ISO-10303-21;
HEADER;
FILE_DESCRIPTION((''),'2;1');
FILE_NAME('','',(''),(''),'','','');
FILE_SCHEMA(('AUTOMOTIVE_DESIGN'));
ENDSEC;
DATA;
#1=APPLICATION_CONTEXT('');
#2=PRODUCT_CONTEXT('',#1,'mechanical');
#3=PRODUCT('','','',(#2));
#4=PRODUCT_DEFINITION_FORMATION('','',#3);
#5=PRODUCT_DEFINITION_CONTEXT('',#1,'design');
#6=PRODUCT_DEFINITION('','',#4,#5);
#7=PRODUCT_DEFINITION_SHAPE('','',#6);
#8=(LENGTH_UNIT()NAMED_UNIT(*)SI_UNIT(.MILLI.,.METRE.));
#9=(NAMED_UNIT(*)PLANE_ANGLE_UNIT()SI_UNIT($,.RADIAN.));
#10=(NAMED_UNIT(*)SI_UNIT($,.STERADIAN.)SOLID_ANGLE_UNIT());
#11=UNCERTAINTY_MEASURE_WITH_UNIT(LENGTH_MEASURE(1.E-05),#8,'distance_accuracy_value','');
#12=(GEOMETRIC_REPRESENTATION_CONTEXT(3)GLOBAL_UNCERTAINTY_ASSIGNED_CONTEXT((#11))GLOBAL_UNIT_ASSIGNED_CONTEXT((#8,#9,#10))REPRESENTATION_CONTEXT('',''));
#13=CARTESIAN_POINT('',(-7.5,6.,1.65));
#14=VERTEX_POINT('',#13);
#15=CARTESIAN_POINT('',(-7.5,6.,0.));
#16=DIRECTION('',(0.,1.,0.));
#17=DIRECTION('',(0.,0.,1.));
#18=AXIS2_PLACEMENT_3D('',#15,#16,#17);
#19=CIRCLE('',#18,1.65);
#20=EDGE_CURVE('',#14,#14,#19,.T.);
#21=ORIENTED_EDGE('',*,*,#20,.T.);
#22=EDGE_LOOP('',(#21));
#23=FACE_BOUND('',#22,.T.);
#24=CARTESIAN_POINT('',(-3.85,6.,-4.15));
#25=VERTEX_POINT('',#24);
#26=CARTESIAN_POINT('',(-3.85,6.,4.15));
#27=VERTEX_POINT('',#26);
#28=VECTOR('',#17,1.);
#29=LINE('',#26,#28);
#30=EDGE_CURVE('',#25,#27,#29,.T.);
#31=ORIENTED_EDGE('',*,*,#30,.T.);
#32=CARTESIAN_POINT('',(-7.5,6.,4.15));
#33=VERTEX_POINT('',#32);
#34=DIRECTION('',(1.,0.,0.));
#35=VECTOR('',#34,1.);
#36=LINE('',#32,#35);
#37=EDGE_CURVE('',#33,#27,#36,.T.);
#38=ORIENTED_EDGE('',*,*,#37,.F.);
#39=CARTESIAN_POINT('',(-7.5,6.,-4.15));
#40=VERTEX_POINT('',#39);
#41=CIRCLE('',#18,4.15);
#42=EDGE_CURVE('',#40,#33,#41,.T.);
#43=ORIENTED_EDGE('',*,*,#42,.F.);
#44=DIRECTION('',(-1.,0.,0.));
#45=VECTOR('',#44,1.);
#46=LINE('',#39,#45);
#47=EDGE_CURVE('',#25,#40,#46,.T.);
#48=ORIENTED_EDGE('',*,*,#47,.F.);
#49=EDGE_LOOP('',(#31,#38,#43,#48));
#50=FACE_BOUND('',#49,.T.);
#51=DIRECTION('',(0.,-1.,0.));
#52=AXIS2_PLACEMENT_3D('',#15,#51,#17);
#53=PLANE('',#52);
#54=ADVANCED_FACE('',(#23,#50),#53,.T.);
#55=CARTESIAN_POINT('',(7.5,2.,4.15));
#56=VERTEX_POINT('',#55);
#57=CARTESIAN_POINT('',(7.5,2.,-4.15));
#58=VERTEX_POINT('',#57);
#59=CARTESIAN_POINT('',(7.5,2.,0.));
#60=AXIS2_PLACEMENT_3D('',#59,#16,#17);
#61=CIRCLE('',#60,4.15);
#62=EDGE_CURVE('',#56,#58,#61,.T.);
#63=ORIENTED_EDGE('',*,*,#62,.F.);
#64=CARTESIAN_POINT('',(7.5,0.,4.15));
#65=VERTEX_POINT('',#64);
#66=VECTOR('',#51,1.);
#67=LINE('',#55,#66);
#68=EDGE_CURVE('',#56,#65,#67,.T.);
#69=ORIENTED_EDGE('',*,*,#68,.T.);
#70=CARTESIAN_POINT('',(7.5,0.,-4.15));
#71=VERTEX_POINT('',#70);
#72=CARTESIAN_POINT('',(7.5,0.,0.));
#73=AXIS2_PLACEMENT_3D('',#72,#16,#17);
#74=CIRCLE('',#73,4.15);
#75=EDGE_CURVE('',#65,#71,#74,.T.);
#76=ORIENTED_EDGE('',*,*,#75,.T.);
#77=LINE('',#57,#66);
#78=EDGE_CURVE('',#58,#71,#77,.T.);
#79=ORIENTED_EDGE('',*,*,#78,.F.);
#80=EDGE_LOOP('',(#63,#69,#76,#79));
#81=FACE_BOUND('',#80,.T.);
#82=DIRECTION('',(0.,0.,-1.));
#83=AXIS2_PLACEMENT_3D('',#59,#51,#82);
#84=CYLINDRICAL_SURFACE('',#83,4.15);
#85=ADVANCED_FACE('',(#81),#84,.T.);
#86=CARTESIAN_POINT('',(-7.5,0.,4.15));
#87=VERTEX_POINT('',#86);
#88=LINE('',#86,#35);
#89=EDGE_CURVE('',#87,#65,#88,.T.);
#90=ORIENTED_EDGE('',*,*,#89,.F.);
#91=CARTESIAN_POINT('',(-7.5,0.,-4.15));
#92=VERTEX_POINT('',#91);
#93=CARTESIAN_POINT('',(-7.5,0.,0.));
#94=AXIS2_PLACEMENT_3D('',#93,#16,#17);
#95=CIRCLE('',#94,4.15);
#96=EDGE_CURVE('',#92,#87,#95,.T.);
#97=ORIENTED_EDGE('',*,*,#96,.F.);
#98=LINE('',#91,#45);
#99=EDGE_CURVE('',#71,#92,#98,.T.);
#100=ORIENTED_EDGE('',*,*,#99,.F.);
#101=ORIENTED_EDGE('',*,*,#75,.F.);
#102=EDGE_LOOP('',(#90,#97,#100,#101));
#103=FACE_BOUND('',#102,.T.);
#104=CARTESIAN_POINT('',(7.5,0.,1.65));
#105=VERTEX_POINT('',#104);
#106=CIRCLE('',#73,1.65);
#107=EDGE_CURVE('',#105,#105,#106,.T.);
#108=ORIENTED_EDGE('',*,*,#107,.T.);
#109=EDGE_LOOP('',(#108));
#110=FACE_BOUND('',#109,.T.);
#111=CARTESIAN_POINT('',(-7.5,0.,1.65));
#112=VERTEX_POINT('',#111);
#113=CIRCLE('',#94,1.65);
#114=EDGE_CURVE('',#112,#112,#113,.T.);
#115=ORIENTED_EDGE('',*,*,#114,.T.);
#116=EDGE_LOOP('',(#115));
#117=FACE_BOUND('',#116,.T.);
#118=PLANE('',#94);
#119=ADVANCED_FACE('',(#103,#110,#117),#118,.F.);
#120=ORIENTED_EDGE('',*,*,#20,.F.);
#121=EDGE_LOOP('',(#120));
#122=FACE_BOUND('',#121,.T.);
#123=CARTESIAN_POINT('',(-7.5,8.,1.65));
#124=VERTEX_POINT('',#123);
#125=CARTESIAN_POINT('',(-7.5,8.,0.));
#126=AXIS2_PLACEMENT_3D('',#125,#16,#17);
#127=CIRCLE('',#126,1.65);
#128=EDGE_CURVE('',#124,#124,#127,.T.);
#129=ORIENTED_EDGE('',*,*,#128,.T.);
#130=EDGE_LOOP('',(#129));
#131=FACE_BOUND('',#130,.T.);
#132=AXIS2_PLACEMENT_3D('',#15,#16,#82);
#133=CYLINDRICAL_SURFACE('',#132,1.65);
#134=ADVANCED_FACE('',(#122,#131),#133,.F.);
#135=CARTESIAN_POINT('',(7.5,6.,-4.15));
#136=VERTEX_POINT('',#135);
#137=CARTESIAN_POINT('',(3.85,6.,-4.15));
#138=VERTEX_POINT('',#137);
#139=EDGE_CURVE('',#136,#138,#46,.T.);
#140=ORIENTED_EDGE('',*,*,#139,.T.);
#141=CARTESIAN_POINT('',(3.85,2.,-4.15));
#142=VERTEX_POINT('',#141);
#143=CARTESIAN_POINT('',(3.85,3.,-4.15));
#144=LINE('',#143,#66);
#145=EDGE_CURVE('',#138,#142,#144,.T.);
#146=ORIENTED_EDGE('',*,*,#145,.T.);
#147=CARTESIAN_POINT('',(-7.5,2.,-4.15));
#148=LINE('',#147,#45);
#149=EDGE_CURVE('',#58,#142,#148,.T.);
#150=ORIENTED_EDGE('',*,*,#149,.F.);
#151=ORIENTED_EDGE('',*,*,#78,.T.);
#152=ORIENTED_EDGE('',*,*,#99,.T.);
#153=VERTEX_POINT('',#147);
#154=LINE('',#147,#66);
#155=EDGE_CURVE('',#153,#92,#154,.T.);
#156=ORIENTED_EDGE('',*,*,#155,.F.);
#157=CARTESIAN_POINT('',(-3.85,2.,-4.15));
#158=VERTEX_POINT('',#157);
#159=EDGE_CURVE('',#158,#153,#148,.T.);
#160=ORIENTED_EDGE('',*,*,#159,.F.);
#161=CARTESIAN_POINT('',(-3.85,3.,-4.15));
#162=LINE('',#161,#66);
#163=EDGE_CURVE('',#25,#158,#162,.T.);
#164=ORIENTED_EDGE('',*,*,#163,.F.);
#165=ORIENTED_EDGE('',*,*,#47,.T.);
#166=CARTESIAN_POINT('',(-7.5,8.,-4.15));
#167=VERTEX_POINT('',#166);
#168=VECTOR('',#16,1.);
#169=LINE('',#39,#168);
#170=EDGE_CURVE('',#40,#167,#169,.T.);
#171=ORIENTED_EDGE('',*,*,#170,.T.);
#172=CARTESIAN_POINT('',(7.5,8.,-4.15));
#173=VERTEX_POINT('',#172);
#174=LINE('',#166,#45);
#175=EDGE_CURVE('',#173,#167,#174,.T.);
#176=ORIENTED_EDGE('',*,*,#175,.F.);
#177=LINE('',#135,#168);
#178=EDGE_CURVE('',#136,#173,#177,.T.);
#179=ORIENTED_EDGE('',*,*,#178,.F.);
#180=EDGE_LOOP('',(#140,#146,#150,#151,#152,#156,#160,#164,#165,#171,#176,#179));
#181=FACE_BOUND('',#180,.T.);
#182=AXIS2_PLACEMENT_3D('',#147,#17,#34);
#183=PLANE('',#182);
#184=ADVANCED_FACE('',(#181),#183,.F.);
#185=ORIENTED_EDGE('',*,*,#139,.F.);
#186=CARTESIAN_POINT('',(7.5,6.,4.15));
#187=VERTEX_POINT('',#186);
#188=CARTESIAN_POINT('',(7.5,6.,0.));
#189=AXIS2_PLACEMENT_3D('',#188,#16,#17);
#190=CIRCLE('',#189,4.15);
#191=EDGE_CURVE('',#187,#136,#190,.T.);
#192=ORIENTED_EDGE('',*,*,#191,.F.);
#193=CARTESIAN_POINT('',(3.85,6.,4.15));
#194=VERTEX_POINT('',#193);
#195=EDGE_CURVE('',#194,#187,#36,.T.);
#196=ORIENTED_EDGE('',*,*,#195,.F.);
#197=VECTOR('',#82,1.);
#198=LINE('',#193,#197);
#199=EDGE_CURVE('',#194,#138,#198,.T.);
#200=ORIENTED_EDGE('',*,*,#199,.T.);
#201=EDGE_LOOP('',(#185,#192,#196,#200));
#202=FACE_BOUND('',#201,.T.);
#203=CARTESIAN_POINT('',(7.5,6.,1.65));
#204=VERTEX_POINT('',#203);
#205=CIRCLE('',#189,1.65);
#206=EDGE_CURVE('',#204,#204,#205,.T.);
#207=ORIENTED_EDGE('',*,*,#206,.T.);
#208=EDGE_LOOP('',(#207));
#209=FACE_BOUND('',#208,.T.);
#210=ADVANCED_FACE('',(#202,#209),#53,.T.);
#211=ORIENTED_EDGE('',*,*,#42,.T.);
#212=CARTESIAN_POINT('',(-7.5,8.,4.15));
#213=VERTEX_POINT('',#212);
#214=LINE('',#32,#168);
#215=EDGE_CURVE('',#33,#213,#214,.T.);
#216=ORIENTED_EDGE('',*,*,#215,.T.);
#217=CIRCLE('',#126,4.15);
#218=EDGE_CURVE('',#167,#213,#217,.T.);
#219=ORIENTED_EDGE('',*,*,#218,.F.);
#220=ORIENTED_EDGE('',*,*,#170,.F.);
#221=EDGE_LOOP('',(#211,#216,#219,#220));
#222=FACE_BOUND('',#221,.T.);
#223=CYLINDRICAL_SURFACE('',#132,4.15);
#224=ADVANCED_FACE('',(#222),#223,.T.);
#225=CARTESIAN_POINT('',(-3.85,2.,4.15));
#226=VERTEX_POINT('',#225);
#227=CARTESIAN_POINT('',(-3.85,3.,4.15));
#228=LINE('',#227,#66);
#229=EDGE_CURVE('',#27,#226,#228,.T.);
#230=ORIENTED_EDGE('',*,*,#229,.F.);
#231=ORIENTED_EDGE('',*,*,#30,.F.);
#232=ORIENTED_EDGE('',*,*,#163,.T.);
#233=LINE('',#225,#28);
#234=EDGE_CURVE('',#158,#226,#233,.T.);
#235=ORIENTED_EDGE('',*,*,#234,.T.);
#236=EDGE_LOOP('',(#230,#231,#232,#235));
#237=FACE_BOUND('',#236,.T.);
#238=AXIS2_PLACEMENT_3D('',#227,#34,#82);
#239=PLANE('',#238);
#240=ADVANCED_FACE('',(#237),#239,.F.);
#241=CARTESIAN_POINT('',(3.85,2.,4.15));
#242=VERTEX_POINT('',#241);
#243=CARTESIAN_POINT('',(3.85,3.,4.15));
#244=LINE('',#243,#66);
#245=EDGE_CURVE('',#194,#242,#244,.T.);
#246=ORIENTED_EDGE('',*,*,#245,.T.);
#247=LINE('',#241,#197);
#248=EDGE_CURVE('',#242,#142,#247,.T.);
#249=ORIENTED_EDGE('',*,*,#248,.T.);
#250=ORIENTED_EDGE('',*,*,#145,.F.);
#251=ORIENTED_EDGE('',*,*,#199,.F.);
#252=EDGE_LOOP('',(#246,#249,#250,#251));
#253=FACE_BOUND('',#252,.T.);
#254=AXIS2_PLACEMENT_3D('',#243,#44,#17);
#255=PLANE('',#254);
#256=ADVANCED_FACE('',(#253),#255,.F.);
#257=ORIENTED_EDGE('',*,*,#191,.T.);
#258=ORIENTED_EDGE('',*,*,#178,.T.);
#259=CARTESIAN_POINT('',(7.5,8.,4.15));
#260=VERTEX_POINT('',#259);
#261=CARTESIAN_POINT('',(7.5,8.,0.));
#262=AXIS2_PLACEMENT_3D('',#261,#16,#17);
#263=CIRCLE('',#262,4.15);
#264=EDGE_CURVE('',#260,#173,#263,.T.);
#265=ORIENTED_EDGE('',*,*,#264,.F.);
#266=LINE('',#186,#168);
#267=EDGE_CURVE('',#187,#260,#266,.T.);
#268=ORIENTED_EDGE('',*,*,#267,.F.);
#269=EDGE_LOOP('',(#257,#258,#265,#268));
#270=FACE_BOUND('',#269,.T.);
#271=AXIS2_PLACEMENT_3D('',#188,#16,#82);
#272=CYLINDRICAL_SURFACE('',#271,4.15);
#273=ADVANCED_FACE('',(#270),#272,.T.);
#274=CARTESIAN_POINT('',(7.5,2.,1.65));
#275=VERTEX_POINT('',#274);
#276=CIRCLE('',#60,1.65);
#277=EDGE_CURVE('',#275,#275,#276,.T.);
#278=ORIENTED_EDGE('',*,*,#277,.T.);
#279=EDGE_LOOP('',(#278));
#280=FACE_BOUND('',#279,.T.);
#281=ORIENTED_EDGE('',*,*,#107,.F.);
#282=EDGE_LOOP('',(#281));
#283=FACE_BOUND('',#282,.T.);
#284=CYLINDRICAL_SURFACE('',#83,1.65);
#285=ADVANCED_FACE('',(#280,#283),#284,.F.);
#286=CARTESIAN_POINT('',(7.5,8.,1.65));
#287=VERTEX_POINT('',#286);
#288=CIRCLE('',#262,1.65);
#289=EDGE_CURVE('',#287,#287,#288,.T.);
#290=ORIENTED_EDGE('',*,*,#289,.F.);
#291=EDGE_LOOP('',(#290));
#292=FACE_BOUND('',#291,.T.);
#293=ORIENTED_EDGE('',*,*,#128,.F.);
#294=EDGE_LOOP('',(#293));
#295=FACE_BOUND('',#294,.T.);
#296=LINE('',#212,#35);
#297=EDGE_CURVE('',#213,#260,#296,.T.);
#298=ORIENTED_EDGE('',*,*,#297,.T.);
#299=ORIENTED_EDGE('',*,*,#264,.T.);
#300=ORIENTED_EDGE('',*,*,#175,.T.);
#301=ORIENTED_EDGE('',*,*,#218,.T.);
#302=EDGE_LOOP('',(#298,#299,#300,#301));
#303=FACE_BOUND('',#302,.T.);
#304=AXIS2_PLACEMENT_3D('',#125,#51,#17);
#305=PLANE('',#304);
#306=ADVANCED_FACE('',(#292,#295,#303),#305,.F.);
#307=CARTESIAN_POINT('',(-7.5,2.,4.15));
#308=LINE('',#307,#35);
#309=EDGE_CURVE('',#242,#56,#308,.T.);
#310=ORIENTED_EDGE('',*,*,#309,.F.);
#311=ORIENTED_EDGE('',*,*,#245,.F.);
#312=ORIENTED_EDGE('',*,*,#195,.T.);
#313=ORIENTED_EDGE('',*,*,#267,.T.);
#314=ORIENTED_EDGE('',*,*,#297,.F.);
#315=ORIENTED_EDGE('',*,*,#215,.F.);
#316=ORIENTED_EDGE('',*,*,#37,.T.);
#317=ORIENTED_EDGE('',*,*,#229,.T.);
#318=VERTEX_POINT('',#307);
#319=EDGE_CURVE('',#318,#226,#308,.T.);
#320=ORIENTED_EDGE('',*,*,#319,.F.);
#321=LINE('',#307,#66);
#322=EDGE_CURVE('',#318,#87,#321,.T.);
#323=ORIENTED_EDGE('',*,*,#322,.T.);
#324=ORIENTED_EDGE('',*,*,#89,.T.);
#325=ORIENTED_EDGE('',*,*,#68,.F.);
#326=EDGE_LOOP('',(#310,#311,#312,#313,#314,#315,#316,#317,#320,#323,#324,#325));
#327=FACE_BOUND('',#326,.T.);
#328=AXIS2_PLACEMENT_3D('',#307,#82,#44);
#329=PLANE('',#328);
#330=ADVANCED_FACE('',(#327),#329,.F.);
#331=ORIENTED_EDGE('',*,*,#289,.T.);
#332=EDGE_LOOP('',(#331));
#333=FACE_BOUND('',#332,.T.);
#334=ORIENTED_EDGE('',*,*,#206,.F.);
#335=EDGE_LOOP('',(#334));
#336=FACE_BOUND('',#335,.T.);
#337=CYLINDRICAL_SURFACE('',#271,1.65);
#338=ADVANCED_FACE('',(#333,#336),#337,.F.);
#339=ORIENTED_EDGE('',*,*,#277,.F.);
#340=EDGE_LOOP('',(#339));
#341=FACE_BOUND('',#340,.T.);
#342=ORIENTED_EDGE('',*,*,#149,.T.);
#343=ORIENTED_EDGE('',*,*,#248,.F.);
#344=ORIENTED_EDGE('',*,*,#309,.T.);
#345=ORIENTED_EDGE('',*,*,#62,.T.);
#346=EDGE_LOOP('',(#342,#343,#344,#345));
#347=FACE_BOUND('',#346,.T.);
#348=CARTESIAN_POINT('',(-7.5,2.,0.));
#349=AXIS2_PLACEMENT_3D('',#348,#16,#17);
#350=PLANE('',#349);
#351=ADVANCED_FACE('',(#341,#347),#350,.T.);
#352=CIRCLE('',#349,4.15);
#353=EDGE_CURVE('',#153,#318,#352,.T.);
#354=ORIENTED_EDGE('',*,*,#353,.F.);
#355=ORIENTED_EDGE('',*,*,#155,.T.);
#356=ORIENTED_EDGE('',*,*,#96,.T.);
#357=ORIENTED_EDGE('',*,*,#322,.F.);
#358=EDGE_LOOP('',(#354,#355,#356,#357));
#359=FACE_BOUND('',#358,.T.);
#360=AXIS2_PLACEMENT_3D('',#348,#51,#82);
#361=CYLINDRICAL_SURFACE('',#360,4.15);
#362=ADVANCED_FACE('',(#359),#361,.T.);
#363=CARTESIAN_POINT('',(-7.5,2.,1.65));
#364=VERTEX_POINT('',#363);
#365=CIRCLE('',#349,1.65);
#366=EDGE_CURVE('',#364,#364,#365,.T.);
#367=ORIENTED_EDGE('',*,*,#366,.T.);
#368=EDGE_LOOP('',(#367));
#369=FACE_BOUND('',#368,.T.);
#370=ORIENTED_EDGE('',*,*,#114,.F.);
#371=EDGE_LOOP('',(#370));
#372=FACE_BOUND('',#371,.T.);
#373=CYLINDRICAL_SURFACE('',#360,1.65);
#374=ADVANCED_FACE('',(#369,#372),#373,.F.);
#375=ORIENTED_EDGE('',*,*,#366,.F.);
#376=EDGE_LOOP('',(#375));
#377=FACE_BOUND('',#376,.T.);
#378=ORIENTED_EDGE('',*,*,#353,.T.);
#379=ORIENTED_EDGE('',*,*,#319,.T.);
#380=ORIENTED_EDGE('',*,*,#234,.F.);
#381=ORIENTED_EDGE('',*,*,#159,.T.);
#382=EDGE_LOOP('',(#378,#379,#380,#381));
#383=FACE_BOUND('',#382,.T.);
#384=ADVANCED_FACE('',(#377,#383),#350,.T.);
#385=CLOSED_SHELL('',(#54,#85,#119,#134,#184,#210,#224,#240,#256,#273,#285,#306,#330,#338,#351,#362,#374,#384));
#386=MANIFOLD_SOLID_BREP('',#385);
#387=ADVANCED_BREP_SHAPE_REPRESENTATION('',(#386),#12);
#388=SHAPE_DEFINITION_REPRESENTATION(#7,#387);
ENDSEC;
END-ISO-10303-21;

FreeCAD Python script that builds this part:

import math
import FreeCAD as App
import Part
import Sketcher
Q = App.Units.Quantity

doc = App.newDocument("Part")
body = doc.addObject("PartDesign::Body", "Body")

# Sketch on XZ plane
sketch1 = body.newObject("Sketcher::SketchObject", "Sketch")
sketch1.AttachmentSupport = (doc.getObject("XZ_Plane"), [""])
sketch1.MapMode = "FlatFace"
sketch1.addGeometry([
    Part.LineSegment(App.Vector(7.5, -4.15, 0), App.Vector(-7.5, -4.15, 0)),  # 0
    Part.ArcOfCircle(Part.Circle(App.Vector(-7.5, 0, 0), App.Vector(0, 0, 1), 4.15), math.radians(90), math.radians(270)),  # 1
    Part.LineSegment(App.Vector(-7.5, 4.15, 0), App.Vector(7.5, 4.15, 0)),  # 2
    Part.ArcOfCircle(Part.Circle(App.Vector(7.5, 0, 0), App.Vector(0, 0, 1), 4.15), math.radians(-90), math.radians(90)),  # 3
    Part.Circle(App.Vector(7.5, 0, 0), App.Vector(0, 0, 1), 1.65),  # 4
    Part.Circle(App.Vector(-7.5, 0, 0), App.Vector(0, 0, 1), 1.65),  # 5
], False)
sketch1.addConstraint([
    Sketcher.Constraint("Tangent", 0, 2, 1, 2),
    Sketcher.Constraint("Tangent", 1, 1, 2, 1),
    Sketcher.Constraint("Tangent", 2, 2, 3, 2),
    Sketcher.Constraint("Tangent", 3, 1, 0, 1),
    Sketcher.Constraint("Horizontal", 0),
    Sketcher.Constraint("Horizontal", 2),
    Sketcher.Constraint("Coincident", 4, 3, 3, 3),
    Sketcher.Constraint("Coincident", 5, 3, 1, 3),
    Sketcher.Constraint("Equal", 4, 5),
    Sketcher.Constraint("Symmetric", 1, 3, 3, 3, -1, 1),
    Sketcher.Constraint("Diameter", 4, Q("3.3 mm")),
    Sketcher.Constraint("DistanceX", 0, 2, 0, 1, Q("15 mm")),
    Sketcher.Constraint("Radius", 1, Q("4.15 mm")),
])
pad1 = body.newObject("PartDesign::Pad", "Pad")
pad1.Profile = sketch1
pad1.Length = 2
pad1.Reversed = True

# Sketch on XZ plane
sketch2 = body.newObject("Sketcher::SketchObject", "Sketch001")
sketch2.AttachmentSupport = (doc.getObject("XZ_Plane"), [""])
sketch2.MapMode = "FlatFace"
sketch2.AttachmentOffset = App.Placement(App.Vector(0, 0, -2), App.Rotation())
sketch2.addGeometry([
    Part.LineSegment(App.Vector(-3.85, -4.15, 0), App.Vector(-3.85, 4.15, 0)),
    Part.LineSegment(App.Vector(-3.85, 4.15, 0), App.Vector(3.85, 4.15, 0)),
    Part.LineSegment(App.Vector(3.85, 4.15, 0), App.Vector(3.85, -4.15, 0)),
    Part.LineSegment(App.Vector(3.85, -4.15, 0), App.Vector(-3.85, -4.15, 0)),
], False)
sketch2.addConstraint([
    Sketcher.Constraint("Coincident", 0, 2, 1, 1),
    Sketcher.Constraint("Coincident", 1, 2, 2, 1),
    Sketcher.Constraint("Coincident", 2, 2, 3, 1),
    Sketcher.Constraint("Coincident", 3, 2, 0, 1),
    Sketcher.Constraint("Vertical", 0),
    Sketcher.Constraint("Horizontal", 1),
    Sketcher.Constraint("Vertical", 2),
    Sketcher.Constraint("Horizontal", 3),
    Sketcher.Constraint("Symmetric", 0, 2, 2, 2, -1, 1),
    Sketcher.Constraint("DistanceX", 1, 1, 1, 2, Q("7.7 mm")),
    Sketcher.Constraint("DistanceY", 0, 1, 0, 2, Q("8.3 mm")),
])
pad2 = body.newObject("PartDesign::Pad", "Pad001")
pad2.Profile = sketch2
pad2.Length = 1
pad2.Reversed = True
doc.recompute()

datumplane = body.newObject("PartDesign::Plane", "DatumPlane")
datumplane.AttachmentSupport = (doc.getObject("XZ_Plane"), [""])
datumplane.MapMode = "FlatFace"
datumplane.AttachmentOffset = App.Placement(App.Vector(0, 0, -3), App.Rotation())
mirrored = body.newObject("PartDesign::Mirrored", "Mirrored")
mirrored.Originals = [pad2]
mirrored.MirrorPlane = (datumplane, [""])
body.Tip = mirrored
body2 = doc.addObject("PartDesign::Body", "Body001")
doc.recompute()

body2.BaseFeature = body
doc.recompute()

mirroring = doc.addObject("Part::Mirroring", "Mirroring")
mirroring.Source = body
mirroring.Base = App.Vector(0, 4, 0)
mirroring.Normal = App.Vector(0, -1, 0)
body3 = doc.addObject("PartDesign::Body", "Body002")
body3.BaseFeature = mirroring
boolean = body2.newObject("PartDesign::Boolean", "Boolean")
boolean.Type = "Fuse"
boolean.addObjects([body3])
doc.recompute()
mirroring.Visibility = False

doc.recompute()
